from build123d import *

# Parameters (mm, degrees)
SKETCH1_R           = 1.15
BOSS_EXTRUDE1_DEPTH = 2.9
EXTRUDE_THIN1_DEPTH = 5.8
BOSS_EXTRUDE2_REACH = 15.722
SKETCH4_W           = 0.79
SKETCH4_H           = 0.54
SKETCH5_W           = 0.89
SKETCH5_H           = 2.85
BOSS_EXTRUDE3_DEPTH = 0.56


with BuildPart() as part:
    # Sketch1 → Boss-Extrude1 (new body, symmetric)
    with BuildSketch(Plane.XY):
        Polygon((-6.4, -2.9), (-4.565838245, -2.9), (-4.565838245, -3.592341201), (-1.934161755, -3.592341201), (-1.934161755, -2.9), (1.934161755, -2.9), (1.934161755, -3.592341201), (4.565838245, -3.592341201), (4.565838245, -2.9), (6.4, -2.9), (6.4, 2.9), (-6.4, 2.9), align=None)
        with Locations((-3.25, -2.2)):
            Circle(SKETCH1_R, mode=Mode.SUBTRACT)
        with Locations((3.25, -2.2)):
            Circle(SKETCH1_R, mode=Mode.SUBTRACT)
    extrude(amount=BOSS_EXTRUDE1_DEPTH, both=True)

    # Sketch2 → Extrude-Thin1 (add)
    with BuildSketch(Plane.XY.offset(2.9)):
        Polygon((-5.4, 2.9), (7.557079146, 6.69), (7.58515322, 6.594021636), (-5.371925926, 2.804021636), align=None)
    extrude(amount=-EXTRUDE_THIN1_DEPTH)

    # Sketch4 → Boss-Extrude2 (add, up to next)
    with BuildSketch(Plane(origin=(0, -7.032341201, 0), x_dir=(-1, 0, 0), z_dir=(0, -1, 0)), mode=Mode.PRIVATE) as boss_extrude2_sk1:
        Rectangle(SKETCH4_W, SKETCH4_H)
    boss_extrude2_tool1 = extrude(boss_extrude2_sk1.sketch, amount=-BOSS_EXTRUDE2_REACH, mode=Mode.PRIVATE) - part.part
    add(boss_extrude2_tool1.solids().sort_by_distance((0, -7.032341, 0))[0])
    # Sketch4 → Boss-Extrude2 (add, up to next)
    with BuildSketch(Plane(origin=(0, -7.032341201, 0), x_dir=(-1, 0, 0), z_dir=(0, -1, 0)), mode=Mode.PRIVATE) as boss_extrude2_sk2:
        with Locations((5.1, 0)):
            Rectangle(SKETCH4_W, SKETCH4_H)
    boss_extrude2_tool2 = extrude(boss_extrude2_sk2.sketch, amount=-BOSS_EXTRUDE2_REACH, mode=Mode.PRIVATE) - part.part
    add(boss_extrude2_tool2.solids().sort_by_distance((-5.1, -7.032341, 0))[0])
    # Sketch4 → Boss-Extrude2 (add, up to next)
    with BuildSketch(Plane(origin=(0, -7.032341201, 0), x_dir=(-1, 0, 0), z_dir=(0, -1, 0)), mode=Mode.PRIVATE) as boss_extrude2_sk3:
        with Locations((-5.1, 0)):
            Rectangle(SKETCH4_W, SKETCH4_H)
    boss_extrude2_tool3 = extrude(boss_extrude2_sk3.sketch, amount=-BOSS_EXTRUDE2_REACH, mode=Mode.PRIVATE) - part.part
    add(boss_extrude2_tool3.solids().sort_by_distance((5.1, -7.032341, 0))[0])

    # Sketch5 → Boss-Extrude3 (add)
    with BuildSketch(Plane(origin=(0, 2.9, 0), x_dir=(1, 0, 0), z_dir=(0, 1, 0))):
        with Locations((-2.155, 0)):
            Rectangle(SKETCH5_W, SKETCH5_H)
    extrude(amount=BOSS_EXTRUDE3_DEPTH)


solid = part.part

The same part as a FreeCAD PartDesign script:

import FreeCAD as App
import Part
import Sketcher

V = App.Vector
Q = App.Units.Quantity


def add_polygon(sketch, points):
    """Adds a closed chain of lines whose ends are joined by coincident constraints."""
    first, n = sketch.GeometryCount, len(points)
    for a, b in zip(points, points[1:] + points[:1]):
        sketch.addGeometry(Part.LineSegment(App.Vector(*a, 0), App.Vector(*b, 0)), False)
    for i in range(n):
        sketch.addConstraint(Sketcher.Constraint("Coincident", first + i, 2, first + (i + 1) % n, 1))

doc = App.newDocument("Part")
body = doc.addObject("PartDesign::Body", "Body")

sketch1 = body.newObject("Sketcher::SketchObject", "Sketch")
sketch1.AttachmentSupport = (doc.getObject("XY_Plane"), [""])
sketch1.MapMode = "FlatFace"
add_polygon(sketch1, [(-6.4, -2.9), (-4.6, -2.9), (-4.6, -3.6), (-1.9, -3.6), (-1.9, -2.9), (1.9, -2.9), (1.9, -3.6), (4.6, -3.6), (4.6, -2.9), (6.4, -2.9), (6.4, 2.9), (-6.4, 2.9)])
sketch1.addGeometry(Part.Circle(V(-3.2, -2.2, 0), V(0, 0, 1), 1.1), False)
sketch1.addGeometry(Part.Circle(V(3.2, -2.2, 0), V(0, 0, 1), 1.1), False)
sketch1.addConstraint([
    Sketcher.Constraint("Horizontal", 0),
    Sketcher.Constraint("Vertical", 1),
    Sketcher.Constraint("Horizontal", 2),
    Sketcher.Constraint("Vertical", 3),
    Sketcher.Constraint("Horizontal", 4),
    Sketcher.Constraint("Vertical", 5),
    Sketcher.Constraint("Horizontal", 6),
    Sketcher.Constraint("Vertical", 7),
    Sketcher.Constraint("Horizontal", 8),
    Sketcher.Constraint("Vertical", 9),
    Sketcher.Constraint("Horizontal", 10),
    Sketcher.Constraint("Vertical", 11),
    Sketcher.Constraint("Equal", 12, 13),
    Sketcher.Constraint("Symmetric", 8, 2, 10, 2, -1, 1),
    Sketcher.Constraint("Symmetric", 12, 3, 13, 3, -2),
    Sketcher.Constraint("Symmetric", 2, 2, 5, 2, -2),
    Sketcher.Constraint("Symmetric", 0, 2, 7, 2, -2),
    Sketcher.Constraint("Horizontal", 0, 2, 3, 2),
    Sketcher.Constraint("Diameter", 12, Q("2.3 mm")),
    Sketcher.Constraint("DistanceX", 10, 2, 10, 1, Q("12.8 mm")),
    Sketcher.Constraint("DistanceY", 9, 1, 9, 2, Q("5.8 mm")),
    Sketcher.Constraint("DistanceY", 12, 3, -1, 1, Q("2.2 mm")),
    Sketcher.Constraint("DistanceX", 12, 3, 13, 3, Q("6.5 mm")),
    Sketcher.Constraint("DistanceX", 0, 2, 4, 2, Q("6.5 mm")),
    Sketcher.Constraint("DistanceX", 0, 1, 0, 2, Q("1.834162 mm")),
    Sketcher.Constraint("DistanceY", 1, 2, 1, 1, Q("0.692341 mm")),
])
pad1 = body.newObject("PartDesign::Pad", "Pad")
pad1.Profile = sketch1
pad1.Length = 5.8
pad1.Midplane = True

sketch2 = body.newObject("Sketcher::SketchObject", "Sketch001")
sketch2.AttachmentSupport = (doc.getObject("XY_Plane"), [""])
sketch2.MapMode = "FlatFace"
sketch2.AttachmentOffset = App.Placement(V(0, 0, 2.9), App.Rotation())
add_polygon(sketch2, [(7.56, 6.69), (-5.4, 2.9), (-5.37, 2.8), (7.59, 6.59)])
sketch2.addConstraint([
    Sketcher.Constraint("Perpendicular", 0, 1),
    Sketcher.Constraint("Perpendicular", 1, 2),
    Sketcher.Constraint("Perpendicular", 2, 3),
    Sketcher.Constraint("Distance", 0, Q("13.5 mm")),
    Sketcher.Constraint("Distance", 1, Q("0.1 mm")),
    Sketcher.Constraint("DistanceX", 0, 2, -1, 1, Q("5.4 mm")),
    Sketcher.Constraint("DistanceY", -1, 1, 0, 2, Q("2.9 mm")),
    Sketcher.Constraint("DistanceY", -1, 1, 3, 2, Q("6.69 mm")),
])
pad2 = body.newObject("PartDesign::Pad", "Pad001")
pad2.Profile = sketch2
pad2.Length = 5.8
pad2.Reversed = True

sketch3 = body.newObject("Sketcher::SketchObject", "Sketch002")
sketch3.AttachmentSupport = (doc.getObject("XZ_Plane"), [""])
sketch3.MapMode = "FlatFace"
sketch3.AttachmentOffset = App.Placement(V(0, 0, 7.032341), App.Rotation())
add_polygon(sketch3, [(0.4, -0.3), (0.4, 0.3), (-0.4, 0.3), (-0.4, -0.3)])
sketch3.addConstraint([
    Sketcher.Constraint("Vertical", 0),
    Sketcher.Constraint("Horizontal", 1),
    Sketcher.Constraint("Vertical", 2),
    Sketcher.Constraint("Horizontal", 3),
    Sketcher.Constraint("Symmetric", 0, 2, 2, 2, -1, 1),
    Sketcher.Constraint("DistanceX", 1, 2, 1, 1, Q("0.79 mm")),
    Sketcher.Constraint("DistanceY", 0, 1, 0, 2, Q("0.54 mm")),
])
pad3 = body.newObject("PartDesign::Pad", "Pad002")
pad3.Profile = sketch3
pad3.Type = "UpToFirst"
pad3.Reversed = True

sketch4 = body.newObject("Sketcher::SketchObject", "Sketch003")
sketch4.AttachmentSupport = (doc.getObject("XZ_Plane"), [""])
sketch4.MapMode = "FlatFace"
sketch4.AttachmentOffset = App.Placement(V(0, 0, 7.032341), App.Rotation())
add_polygon(sketch4, [(-4.7, -0.3), (-4.7, 0.3), (-5.5, 0.3), (-5.5, -0.3)])
sketch4.addConstraint([
    Sketcher.Constraint("Vertical", 0),
    Sketcher.Constraint("Horizontal", 1),
    Sketcher.Constraint("Vertical", 2),
    Sketcher.Constraint("Horizontal", 3),
    Sketcher.Constraint("DistanceX", 1, 2, 1, 1, Q("0.79 mm")),
    Sketcher.Constraint("DistanceY", 0, 1, 0, 2, Q("0.54 mm")),
    Sketcher.Constraint("DistanceY", -1, 1, 0, 2, Q("0.27 mm")),
    Sketcher.Constraint("DistanceX", 0, 2, -1, 1, Q("4.705 mm")),
])
pad4 = body.newObject("PartDesign::Pad", "Pad003")
pad4.Profile = sketch4
pad4.Type = "UpToFirst"
pad4.Reversed = True

sketch5 = body.newObject("Sketcher::SketchObject", "Sketch004")
sketch5.AttachmentSupport = (doc.getObject("XZ_Plane"), [""])
sketch5.MapMode = "FlatFace"
sketch5.AttachmentOffset = App.Placement(V(0, 0, 7.032341), App.Rotation())
add_polygon(sketch5, [(5.5, -0.3), (5.5, 0.3), (4.7, 0.3), (4.7, -0.3)])
sketch5.addConstraint([
    Sketcher.Constraint("Vertical", 0),
    Sketcher.Constraint("Horizontal", 1),
    Sketcher.Constraint("Vertical", 2),
    Sketcher.Constraint("Horizontal", 3),
    Sketcher.Constraint("DistanceX", 1, 2, 1, 1, Q("0.79 mm")),
    Sketcher.Constraint("DistanceY", 0, 1, 0, 2, Q("0.54 mm")),
    Sketcher.Constraint("DistanceY", -1, 1, 0, 2, Q("0.27 mm")),
    Sketcher.Constraint("DistanceX", -1, 1, 0, 2, Q("5.495 mm")),
])
pad5 = body.newObject("PartDesign::Pad", "Pad004")
pad5.Profile = sketch5
pad5.Type = "UpToFirst"
pad5.Reversed = True

sketch6 = body.newObject("Sketcher::SketchObject", "Sketch005")
sketch6.AttachmentSupport = (doc.getObject("XZ_Plane"), [""])
sketch6.MapMode = "FlatFace"
sketch6.AttachmentOffset = App.Placement(V(0, 0, -2.9), App.Rotation())
add_polygon(sketch6, [(-2.6, -1.4), (-2.6, 1.4), (-1.7, 1.4), (-1.7, -1.4)])
sketch6.addConstraint([
    Sketcher.Constraint("Vertical", 0),
    Sketcher.Constraint("Horizontal", 1),
    Sketcher.Constraint("Vertical", 2),
    Sketcher.Constraint("Horizontal", 3),
    Sketcher.Constraint("DistanceX", 1, 1, 1, 2, Q("0.89 mm")),
    Sketcher.Constraint("DistanceY", 0, 1, 0, 2, Q("2.85 mm")),
    Sketcher.Constraint("DistanceX", 0, 2, -1, 1, Q("2.6 mm")),
    Sketcher.Constraint("DistanceY", -1, 1, 0, 2, Q("1.425 mm")),
])
pad6 = body.newObject("PartDesign::Pad", "Pad005")
pad6.Profile = sketch6
pad6.Length = 0.56
pad6.Reversed = True

doc.recompute()
